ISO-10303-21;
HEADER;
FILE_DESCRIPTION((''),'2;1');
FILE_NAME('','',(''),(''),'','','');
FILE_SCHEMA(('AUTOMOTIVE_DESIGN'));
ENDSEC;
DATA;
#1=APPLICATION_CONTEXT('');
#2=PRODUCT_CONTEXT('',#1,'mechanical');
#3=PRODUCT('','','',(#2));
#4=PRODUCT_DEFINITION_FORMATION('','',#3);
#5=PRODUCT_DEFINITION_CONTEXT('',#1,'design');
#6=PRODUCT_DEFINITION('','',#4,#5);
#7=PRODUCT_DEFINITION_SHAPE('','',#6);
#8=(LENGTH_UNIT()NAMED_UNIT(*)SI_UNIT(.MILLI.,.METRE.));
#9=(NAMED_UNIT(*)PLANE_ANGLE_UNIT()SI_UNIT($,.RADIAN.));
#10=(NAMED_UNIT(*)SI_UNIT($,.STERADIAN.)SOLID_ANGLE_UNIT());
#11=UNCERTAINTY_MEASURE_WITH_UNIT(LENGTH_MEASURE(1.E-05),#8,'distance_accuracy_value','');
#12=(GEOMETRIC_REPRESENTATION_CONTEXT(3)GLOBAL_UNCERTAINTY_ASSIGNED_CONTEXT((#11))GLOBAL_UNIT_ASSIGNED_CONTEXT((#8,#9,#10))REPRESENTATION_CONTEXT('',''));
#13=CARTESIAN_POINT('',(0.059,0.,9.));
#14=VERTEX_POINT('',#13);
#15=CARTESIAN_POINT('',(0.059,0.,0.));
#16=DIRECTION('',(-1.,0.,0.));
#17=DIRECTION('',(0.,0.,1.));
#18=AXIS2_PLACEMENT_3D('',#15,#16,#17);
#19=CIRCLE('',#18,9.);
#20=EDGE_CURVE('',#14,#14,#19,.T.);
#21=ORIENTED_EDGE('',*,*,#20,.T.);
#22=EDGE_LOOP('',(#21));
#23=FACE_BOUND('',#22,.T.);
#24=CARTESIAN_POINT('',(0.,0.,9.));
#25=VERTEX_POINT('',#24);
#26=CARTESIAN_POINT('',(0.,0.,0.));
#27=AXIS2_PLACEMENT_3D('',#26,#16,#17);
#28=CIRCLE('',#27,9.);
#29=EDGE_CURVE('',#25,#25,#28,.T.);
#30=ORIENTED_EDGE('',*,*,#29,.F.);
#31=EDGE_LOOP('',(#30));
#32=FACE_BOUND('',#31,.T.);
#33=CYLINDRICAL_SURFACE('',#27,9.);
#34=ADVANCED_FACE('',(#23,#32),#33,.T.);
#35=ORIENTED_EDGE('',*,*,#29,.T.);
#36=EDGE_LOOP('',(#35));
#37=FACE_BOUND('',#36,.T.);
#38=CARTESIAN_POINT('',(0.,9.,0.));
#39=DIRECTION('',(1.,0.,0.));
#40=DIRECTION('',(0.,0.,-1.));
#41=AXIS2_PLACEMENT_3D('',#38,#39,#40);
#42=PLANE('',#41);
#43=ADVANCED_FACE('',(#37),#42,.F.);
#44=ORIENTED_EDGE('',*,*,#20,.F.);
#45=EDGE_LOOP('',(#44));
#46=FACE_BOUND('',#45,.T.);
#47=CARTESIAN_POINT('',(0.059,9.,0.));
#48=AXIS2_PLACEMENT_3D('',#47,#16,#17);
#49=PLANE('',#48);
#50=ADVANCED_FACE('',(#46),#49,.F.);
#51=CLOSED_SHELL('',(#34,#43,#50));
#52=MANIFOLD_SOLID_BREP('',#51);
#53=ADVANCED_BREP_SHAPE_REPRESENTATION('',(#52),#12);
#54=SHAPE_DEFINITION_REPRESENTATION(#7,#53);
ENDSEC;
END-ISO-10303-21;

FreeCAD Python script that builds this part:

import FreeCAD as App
import Part
import Sketcher

V = App.Vector
Q = App.Units.Quantity


def add_polygon(sketch, points):
    """Adds a closed chain of lines whose ends are joined by coincident constraints."""
    first, n = sketch.GeometryCount, len(points)
    for a, b in zip(points, points[1:] + points[:1]):
        sketch.addGeometry(Part.LineSegment(App.Vector(*a, 0), App.Vector(*b, 0)), False)
    for i in range(n):
        sketch.addConstraint(Sketcher.Constraint("Coincident", first + i, 2, first + (i + 1) % n, 1))

doc = App.newDocument("Part")
body = doc.addObject("PartDesign::Body", "Body")

sketch1 = body.newObject("Sketcher::SketchObject", "Sketch")
sketch1.AttachmentSupport = (doc.getObject("XY_Plane"), [""])
sketch1.MapMode = "FlatFace"
add_polygon(sketch1, [(0, 9), (0, 0), (0.059, 0), (0.059, 9)])
sketch1.addConstraint([
    Sketcher.Constraint("Vertical", 0),
    Sketcher.Constraint("Horizontal", 1),
    Sketcher.Constraint("Vertical", 2),
    Sketcher.Constraint("Horizontal", 3),
    Sketcher.Constraint("Coincident", 0, 2, -1, 1),
    Sketcher.Constraint("DistanceY", 0, 2, 0, 1, Q("9 mm")),
    Sketcher.Constraint("DistanceX", 1, 1, 1, 2, Q("0.059 mm")),
])
revolution = body.newObject("PartDesign::Revolution", "Revolution")
revolution.Profile = sketch1
revolution.ReferenceAxis = (sketch1, ["H_Axis"])
revolution.Angle = 360

doc.recompute()
